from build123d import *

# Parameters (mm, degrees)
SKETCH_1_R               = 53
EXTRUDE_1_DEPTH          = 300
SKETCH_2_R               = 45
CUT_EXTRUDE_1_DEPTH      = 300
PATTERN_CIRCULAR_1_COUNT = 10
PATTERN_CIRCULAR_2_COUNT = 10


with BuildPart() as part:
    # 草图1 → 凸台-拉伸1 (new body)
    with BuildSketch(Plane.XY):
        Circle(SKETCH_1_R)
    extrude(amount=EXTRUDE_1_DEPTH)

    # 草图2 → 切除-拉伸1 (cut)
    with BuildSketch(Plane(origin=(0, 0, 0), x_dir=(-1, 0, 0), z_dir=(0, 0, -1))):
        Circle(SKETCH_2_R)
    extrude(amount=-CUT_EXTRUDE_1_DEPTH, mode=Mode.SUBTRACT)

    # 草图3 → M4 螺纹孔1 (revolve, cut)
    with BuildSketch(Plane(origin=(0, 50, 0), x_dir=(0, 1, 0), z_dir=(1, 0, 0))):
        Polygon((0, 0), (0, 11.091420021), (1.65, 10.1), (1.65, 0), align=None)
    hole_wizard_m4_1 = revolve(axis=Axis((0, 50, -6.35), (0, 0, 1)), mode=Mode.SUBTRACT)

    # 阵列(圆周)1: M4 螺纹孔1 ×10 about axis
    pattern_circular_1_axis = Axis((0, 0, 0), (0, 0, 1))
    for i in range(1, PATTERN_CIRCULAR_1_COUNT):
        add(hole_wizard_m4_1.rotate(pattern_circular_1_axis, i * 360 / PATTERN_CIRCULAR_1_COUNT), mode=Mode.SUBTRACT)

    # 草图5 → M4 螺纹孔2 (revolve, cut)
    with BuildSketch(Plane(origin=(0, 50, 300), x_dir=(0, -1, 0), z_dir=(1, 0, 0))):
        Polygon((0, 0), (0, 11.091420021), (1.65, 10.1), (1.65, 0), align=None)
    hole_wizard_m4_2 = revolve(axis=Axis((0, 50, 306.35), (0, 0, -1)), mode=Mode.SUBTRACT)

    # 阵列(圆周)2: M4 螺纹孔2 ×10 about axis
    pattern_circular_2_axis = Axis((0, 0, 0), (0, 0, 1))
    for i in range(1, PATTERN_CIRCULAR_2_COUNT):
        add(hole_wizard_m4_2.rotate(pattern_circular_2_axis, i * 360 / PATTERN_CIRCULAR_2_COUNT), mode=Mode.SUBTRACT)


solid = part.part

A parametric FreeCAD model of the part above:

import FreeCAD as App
import Part
import Sketcher

V = App.Vector
Q = App.Units.Quantity


def add_polygon(sketch, points):
    """Adds a closed chain of lines whose ends are joined by coincident constraints."""
    first, n = sketch.GeometryCount, len(points)
    for a, b in zip(points, points[1:] + points[:1]):
        sketch.addGeometry(Part.LineSegment(App.Vector(*a, 0), App.Vector(*b, 0)), False)
    for i in range(n):
        sketch.addConstraint(Sketcher.Constraint("Coincident", first + i, 2, first + (i + 1) % n, 1))

doc = App.newDocument("Part")
params = doc.addObject("Spreadsheet::Sheet", "Params")
for row, (alias, value) in enumerate([
    ("sketch1_diameter", "106 mm"),
    ("pad1_length", "300 mm"),
    ("sketch2_diameter", "90 mm"),
    ("pocket1_length", "300 mm"),
    ("sketch3_height", "10.1 mm"),
    ("sketch3_width", "1.65 mm"),
    ("groove_angle", "360 deg"),
    ("sketch4_height", "10.1 mm"),
    ("sketch4_width", "1.65 mm"),
    ("groove2_angle", "360 deg"),
], start=1):
    params.set(f"A{row}", alias)
    params.set(f"B{row}", "=" + value)
    params.setAlias(f"B{row}", alias)

body = doc.addObject("PartDesign::Body", "Body")

# Sketch on XY plane
sketch1 = doc.addObject("Sketcher::SketchObject", "Sketch")
body.addObject(sketch1)
sketch1.AttachmentSupport = (doc.XY_Plane, [""])
sketch1.MapMode = "FlatFace"
sketch1.addGeometry(Part.Circle(V(0, 0, 0), V(0, 0, 1), 53), False)
sketch1.addConstraint([
    Sketcher.Constraint("Coincident", 0, 3, -1, 1),
    Sketcher.Constraint("Diameter", 0, Q("106 mm")),
])
sketch1.setExpression("Constraints[1]", "Params.sketch1_diameter")
pad1 = doc.addObject("PartDesign::Pad", "Pad")
body.addObject(pad1)
pad1.Profile = sketch1
pad1.setExpression("Length", "Params.pad1_length")

# Sketch on XY plane
sketch2 = doc.addObject("Sketcher::SketchObject", "Sketch001")
body.addObject(sketch2)
sketch2.AttachmentSupport = (doc.XY_Plane, [""])
sketch2.MapMode = "FlatFace"
sketch2.addGeometry(Part.Circle(V(0, 0, 0), V(0, 0, 1), 45), False)
sketch2.addConstraint([
    Sketcher.Constraint("Coincident", 0, 3, -1, 1),
    Sketcher.Constraint("Diameter", 0, Q("90 mm")),
])
sketch2.setExpression("Constraints[1]", "Params.sketch2_diameter")
pocket1 = doc.addObject("PartDesign::Pocket", "Pocket")
body.addObject(pocket1)
pocket1.Profile = sketch2
pocket1.setExpression("Length", "Params.pocket1_length")
pocket1.Reversed = True

# Sketch on YZ plane
sketch3 = doc.addObject("Sketcher::SketchObject", "Sketch002")
body.addObject(sketch3)
sketch3.AttachmentSupport = (doc.YZ_Plane, [""])
sketch3.MapMode = "FlatFace"
add_polygon(sketch3, [(50, 11.1), (50, 0), (51.6, 0), (51.6, 10.1)])  # lines 0-3
sketch3.addGeometry(Part.LineSegment(V(50, 0, 0), V(50, 11.1, 0)), True)  # axis
sketch3.addConstraint([
    Sketcher.Constraint("Vertical", 0),
    Sketcher.Constraint("Horizontal", 1),
    Sketcher.Constraint("Vertical", 2),
    Sketcher.Constraint("Vertical", 4),
    Sketcher.Constraint("Coincident", 4, 1, 0, 2),
    Sketcher.Constraint("PointOnObject", 0, 2, -1),
    Sketcher.Constraint("Equal", 0, 4),
    Sketcher.Constraint("Angle", 3, Q("149 deg")),
    Sketcher.Constraint("DistanceY", 2, 1, 2, 2, Q("10.1 mm")),
    Sketcher.Constraint("DistanceX", -1, 1, 0, 2, Q("50 mm")),
    Sketcher.Constraint("DistanceX", 1, 1, 1, 2, Q("1.65 mm")),
])
sketch3.setExpression("Constraints[12]", "Params.sketch3_height")
sketch3.setExpression("Constraints[14]", "Params.sketch3_width")
groove = doc.addObject("PartDesign::Groove", "Groove")
body.addObject(groove)
groove.Profile = sketch3
groove.ReferenceAxis = (sketch3, ["Axis0"])
groove.setExpression("Angle", "Params.groove_angle")
doc.recompute()

polarpattern = doc.addObject("PartDesign::PolarPattern", "PolarPattern")
body.addObject(polarpattern)
polarpattern.Originals = [groove]
polarpattern.Axis = (doc.Z_Axis, [""])
polarpattern.Angle = 360
polarpattern.Occurrences = 10
body.Tip = polarpattern

# Sketch on YZ plane
sketch4 = doc.addObject("Sketcher::SketchObject", "Sketch003")
body.addObject(sketch4)
sketch4.AttachmentSupport = (doc.YZ_Plane, [""])
sketch4.MapMode = "FlatFace"
add_polygon(sketch4, [(50, 288.9), (50, 300), (48.4, 300), (48.4, 289.9)])  # lines 0-3
sketch4.addGeometry(Part.LineSegment(V(50, 300, 0), V(50, 288.9, 0)), True)  # axis
sketch4.addConstraint([
    Sketcher.Constraint("Vertical", 0),
    Sketcher.Constraint("Horizontal", 1),
    Sketcher.Constraint("Vertical", 2),
    Sketcher.Constraint("Vertical", 4),
    Sketcher.Constraint("Coincident", 4, 1, 0, 2),
    Sketcher.Constraint("Equal", 0, 4),
    Sketcher.Constraint("Angle", 3, Q("-31 deg")),
    Sketcher.Constraint("DistanceY", 2, 2, 2, 1, Q("10.1 mm")),
    Sketcher.Constraint("DistanceX", -1, 1, 0, 2, Q("50 mm")),
    Sketcher.Constraint("DistanceY", -1, 1, 0, 2, Q("300 mm")),
    Sketcher.Constraint("DistanceX", 1, 2, 1, 1, Q("1.65 mm")),
])
sketch4.setExpression("Constraints[11]", "Params.sketch4_height")
sketch4.setExpression("Constraints[14]", "Params.sketch4_width")
groove2 = doc.addObject("PartDesign::Groove", "Groove001")
body.addObject(groove2)
groove2.Profile = sketch4
groove2.ReferenceAxis = (sketch4, ["Axis0"])
groove2.setExpression("Angle", "Params.groove2_angle")
doc.recompute()

polarpattern2 = doc.addObject("PartDesign::PolarPattern", "PolarPattern001")
body.addObject(polarpattern2)
polarpattern2.Originals = [groove2]
polarpattern2.Axis = (doc.Z_Axis, [""])
polarpattern2.Angle = 360
polarpattern2.Occurrences = 10
body.Tip = polarpattern2

doc.recompute()
